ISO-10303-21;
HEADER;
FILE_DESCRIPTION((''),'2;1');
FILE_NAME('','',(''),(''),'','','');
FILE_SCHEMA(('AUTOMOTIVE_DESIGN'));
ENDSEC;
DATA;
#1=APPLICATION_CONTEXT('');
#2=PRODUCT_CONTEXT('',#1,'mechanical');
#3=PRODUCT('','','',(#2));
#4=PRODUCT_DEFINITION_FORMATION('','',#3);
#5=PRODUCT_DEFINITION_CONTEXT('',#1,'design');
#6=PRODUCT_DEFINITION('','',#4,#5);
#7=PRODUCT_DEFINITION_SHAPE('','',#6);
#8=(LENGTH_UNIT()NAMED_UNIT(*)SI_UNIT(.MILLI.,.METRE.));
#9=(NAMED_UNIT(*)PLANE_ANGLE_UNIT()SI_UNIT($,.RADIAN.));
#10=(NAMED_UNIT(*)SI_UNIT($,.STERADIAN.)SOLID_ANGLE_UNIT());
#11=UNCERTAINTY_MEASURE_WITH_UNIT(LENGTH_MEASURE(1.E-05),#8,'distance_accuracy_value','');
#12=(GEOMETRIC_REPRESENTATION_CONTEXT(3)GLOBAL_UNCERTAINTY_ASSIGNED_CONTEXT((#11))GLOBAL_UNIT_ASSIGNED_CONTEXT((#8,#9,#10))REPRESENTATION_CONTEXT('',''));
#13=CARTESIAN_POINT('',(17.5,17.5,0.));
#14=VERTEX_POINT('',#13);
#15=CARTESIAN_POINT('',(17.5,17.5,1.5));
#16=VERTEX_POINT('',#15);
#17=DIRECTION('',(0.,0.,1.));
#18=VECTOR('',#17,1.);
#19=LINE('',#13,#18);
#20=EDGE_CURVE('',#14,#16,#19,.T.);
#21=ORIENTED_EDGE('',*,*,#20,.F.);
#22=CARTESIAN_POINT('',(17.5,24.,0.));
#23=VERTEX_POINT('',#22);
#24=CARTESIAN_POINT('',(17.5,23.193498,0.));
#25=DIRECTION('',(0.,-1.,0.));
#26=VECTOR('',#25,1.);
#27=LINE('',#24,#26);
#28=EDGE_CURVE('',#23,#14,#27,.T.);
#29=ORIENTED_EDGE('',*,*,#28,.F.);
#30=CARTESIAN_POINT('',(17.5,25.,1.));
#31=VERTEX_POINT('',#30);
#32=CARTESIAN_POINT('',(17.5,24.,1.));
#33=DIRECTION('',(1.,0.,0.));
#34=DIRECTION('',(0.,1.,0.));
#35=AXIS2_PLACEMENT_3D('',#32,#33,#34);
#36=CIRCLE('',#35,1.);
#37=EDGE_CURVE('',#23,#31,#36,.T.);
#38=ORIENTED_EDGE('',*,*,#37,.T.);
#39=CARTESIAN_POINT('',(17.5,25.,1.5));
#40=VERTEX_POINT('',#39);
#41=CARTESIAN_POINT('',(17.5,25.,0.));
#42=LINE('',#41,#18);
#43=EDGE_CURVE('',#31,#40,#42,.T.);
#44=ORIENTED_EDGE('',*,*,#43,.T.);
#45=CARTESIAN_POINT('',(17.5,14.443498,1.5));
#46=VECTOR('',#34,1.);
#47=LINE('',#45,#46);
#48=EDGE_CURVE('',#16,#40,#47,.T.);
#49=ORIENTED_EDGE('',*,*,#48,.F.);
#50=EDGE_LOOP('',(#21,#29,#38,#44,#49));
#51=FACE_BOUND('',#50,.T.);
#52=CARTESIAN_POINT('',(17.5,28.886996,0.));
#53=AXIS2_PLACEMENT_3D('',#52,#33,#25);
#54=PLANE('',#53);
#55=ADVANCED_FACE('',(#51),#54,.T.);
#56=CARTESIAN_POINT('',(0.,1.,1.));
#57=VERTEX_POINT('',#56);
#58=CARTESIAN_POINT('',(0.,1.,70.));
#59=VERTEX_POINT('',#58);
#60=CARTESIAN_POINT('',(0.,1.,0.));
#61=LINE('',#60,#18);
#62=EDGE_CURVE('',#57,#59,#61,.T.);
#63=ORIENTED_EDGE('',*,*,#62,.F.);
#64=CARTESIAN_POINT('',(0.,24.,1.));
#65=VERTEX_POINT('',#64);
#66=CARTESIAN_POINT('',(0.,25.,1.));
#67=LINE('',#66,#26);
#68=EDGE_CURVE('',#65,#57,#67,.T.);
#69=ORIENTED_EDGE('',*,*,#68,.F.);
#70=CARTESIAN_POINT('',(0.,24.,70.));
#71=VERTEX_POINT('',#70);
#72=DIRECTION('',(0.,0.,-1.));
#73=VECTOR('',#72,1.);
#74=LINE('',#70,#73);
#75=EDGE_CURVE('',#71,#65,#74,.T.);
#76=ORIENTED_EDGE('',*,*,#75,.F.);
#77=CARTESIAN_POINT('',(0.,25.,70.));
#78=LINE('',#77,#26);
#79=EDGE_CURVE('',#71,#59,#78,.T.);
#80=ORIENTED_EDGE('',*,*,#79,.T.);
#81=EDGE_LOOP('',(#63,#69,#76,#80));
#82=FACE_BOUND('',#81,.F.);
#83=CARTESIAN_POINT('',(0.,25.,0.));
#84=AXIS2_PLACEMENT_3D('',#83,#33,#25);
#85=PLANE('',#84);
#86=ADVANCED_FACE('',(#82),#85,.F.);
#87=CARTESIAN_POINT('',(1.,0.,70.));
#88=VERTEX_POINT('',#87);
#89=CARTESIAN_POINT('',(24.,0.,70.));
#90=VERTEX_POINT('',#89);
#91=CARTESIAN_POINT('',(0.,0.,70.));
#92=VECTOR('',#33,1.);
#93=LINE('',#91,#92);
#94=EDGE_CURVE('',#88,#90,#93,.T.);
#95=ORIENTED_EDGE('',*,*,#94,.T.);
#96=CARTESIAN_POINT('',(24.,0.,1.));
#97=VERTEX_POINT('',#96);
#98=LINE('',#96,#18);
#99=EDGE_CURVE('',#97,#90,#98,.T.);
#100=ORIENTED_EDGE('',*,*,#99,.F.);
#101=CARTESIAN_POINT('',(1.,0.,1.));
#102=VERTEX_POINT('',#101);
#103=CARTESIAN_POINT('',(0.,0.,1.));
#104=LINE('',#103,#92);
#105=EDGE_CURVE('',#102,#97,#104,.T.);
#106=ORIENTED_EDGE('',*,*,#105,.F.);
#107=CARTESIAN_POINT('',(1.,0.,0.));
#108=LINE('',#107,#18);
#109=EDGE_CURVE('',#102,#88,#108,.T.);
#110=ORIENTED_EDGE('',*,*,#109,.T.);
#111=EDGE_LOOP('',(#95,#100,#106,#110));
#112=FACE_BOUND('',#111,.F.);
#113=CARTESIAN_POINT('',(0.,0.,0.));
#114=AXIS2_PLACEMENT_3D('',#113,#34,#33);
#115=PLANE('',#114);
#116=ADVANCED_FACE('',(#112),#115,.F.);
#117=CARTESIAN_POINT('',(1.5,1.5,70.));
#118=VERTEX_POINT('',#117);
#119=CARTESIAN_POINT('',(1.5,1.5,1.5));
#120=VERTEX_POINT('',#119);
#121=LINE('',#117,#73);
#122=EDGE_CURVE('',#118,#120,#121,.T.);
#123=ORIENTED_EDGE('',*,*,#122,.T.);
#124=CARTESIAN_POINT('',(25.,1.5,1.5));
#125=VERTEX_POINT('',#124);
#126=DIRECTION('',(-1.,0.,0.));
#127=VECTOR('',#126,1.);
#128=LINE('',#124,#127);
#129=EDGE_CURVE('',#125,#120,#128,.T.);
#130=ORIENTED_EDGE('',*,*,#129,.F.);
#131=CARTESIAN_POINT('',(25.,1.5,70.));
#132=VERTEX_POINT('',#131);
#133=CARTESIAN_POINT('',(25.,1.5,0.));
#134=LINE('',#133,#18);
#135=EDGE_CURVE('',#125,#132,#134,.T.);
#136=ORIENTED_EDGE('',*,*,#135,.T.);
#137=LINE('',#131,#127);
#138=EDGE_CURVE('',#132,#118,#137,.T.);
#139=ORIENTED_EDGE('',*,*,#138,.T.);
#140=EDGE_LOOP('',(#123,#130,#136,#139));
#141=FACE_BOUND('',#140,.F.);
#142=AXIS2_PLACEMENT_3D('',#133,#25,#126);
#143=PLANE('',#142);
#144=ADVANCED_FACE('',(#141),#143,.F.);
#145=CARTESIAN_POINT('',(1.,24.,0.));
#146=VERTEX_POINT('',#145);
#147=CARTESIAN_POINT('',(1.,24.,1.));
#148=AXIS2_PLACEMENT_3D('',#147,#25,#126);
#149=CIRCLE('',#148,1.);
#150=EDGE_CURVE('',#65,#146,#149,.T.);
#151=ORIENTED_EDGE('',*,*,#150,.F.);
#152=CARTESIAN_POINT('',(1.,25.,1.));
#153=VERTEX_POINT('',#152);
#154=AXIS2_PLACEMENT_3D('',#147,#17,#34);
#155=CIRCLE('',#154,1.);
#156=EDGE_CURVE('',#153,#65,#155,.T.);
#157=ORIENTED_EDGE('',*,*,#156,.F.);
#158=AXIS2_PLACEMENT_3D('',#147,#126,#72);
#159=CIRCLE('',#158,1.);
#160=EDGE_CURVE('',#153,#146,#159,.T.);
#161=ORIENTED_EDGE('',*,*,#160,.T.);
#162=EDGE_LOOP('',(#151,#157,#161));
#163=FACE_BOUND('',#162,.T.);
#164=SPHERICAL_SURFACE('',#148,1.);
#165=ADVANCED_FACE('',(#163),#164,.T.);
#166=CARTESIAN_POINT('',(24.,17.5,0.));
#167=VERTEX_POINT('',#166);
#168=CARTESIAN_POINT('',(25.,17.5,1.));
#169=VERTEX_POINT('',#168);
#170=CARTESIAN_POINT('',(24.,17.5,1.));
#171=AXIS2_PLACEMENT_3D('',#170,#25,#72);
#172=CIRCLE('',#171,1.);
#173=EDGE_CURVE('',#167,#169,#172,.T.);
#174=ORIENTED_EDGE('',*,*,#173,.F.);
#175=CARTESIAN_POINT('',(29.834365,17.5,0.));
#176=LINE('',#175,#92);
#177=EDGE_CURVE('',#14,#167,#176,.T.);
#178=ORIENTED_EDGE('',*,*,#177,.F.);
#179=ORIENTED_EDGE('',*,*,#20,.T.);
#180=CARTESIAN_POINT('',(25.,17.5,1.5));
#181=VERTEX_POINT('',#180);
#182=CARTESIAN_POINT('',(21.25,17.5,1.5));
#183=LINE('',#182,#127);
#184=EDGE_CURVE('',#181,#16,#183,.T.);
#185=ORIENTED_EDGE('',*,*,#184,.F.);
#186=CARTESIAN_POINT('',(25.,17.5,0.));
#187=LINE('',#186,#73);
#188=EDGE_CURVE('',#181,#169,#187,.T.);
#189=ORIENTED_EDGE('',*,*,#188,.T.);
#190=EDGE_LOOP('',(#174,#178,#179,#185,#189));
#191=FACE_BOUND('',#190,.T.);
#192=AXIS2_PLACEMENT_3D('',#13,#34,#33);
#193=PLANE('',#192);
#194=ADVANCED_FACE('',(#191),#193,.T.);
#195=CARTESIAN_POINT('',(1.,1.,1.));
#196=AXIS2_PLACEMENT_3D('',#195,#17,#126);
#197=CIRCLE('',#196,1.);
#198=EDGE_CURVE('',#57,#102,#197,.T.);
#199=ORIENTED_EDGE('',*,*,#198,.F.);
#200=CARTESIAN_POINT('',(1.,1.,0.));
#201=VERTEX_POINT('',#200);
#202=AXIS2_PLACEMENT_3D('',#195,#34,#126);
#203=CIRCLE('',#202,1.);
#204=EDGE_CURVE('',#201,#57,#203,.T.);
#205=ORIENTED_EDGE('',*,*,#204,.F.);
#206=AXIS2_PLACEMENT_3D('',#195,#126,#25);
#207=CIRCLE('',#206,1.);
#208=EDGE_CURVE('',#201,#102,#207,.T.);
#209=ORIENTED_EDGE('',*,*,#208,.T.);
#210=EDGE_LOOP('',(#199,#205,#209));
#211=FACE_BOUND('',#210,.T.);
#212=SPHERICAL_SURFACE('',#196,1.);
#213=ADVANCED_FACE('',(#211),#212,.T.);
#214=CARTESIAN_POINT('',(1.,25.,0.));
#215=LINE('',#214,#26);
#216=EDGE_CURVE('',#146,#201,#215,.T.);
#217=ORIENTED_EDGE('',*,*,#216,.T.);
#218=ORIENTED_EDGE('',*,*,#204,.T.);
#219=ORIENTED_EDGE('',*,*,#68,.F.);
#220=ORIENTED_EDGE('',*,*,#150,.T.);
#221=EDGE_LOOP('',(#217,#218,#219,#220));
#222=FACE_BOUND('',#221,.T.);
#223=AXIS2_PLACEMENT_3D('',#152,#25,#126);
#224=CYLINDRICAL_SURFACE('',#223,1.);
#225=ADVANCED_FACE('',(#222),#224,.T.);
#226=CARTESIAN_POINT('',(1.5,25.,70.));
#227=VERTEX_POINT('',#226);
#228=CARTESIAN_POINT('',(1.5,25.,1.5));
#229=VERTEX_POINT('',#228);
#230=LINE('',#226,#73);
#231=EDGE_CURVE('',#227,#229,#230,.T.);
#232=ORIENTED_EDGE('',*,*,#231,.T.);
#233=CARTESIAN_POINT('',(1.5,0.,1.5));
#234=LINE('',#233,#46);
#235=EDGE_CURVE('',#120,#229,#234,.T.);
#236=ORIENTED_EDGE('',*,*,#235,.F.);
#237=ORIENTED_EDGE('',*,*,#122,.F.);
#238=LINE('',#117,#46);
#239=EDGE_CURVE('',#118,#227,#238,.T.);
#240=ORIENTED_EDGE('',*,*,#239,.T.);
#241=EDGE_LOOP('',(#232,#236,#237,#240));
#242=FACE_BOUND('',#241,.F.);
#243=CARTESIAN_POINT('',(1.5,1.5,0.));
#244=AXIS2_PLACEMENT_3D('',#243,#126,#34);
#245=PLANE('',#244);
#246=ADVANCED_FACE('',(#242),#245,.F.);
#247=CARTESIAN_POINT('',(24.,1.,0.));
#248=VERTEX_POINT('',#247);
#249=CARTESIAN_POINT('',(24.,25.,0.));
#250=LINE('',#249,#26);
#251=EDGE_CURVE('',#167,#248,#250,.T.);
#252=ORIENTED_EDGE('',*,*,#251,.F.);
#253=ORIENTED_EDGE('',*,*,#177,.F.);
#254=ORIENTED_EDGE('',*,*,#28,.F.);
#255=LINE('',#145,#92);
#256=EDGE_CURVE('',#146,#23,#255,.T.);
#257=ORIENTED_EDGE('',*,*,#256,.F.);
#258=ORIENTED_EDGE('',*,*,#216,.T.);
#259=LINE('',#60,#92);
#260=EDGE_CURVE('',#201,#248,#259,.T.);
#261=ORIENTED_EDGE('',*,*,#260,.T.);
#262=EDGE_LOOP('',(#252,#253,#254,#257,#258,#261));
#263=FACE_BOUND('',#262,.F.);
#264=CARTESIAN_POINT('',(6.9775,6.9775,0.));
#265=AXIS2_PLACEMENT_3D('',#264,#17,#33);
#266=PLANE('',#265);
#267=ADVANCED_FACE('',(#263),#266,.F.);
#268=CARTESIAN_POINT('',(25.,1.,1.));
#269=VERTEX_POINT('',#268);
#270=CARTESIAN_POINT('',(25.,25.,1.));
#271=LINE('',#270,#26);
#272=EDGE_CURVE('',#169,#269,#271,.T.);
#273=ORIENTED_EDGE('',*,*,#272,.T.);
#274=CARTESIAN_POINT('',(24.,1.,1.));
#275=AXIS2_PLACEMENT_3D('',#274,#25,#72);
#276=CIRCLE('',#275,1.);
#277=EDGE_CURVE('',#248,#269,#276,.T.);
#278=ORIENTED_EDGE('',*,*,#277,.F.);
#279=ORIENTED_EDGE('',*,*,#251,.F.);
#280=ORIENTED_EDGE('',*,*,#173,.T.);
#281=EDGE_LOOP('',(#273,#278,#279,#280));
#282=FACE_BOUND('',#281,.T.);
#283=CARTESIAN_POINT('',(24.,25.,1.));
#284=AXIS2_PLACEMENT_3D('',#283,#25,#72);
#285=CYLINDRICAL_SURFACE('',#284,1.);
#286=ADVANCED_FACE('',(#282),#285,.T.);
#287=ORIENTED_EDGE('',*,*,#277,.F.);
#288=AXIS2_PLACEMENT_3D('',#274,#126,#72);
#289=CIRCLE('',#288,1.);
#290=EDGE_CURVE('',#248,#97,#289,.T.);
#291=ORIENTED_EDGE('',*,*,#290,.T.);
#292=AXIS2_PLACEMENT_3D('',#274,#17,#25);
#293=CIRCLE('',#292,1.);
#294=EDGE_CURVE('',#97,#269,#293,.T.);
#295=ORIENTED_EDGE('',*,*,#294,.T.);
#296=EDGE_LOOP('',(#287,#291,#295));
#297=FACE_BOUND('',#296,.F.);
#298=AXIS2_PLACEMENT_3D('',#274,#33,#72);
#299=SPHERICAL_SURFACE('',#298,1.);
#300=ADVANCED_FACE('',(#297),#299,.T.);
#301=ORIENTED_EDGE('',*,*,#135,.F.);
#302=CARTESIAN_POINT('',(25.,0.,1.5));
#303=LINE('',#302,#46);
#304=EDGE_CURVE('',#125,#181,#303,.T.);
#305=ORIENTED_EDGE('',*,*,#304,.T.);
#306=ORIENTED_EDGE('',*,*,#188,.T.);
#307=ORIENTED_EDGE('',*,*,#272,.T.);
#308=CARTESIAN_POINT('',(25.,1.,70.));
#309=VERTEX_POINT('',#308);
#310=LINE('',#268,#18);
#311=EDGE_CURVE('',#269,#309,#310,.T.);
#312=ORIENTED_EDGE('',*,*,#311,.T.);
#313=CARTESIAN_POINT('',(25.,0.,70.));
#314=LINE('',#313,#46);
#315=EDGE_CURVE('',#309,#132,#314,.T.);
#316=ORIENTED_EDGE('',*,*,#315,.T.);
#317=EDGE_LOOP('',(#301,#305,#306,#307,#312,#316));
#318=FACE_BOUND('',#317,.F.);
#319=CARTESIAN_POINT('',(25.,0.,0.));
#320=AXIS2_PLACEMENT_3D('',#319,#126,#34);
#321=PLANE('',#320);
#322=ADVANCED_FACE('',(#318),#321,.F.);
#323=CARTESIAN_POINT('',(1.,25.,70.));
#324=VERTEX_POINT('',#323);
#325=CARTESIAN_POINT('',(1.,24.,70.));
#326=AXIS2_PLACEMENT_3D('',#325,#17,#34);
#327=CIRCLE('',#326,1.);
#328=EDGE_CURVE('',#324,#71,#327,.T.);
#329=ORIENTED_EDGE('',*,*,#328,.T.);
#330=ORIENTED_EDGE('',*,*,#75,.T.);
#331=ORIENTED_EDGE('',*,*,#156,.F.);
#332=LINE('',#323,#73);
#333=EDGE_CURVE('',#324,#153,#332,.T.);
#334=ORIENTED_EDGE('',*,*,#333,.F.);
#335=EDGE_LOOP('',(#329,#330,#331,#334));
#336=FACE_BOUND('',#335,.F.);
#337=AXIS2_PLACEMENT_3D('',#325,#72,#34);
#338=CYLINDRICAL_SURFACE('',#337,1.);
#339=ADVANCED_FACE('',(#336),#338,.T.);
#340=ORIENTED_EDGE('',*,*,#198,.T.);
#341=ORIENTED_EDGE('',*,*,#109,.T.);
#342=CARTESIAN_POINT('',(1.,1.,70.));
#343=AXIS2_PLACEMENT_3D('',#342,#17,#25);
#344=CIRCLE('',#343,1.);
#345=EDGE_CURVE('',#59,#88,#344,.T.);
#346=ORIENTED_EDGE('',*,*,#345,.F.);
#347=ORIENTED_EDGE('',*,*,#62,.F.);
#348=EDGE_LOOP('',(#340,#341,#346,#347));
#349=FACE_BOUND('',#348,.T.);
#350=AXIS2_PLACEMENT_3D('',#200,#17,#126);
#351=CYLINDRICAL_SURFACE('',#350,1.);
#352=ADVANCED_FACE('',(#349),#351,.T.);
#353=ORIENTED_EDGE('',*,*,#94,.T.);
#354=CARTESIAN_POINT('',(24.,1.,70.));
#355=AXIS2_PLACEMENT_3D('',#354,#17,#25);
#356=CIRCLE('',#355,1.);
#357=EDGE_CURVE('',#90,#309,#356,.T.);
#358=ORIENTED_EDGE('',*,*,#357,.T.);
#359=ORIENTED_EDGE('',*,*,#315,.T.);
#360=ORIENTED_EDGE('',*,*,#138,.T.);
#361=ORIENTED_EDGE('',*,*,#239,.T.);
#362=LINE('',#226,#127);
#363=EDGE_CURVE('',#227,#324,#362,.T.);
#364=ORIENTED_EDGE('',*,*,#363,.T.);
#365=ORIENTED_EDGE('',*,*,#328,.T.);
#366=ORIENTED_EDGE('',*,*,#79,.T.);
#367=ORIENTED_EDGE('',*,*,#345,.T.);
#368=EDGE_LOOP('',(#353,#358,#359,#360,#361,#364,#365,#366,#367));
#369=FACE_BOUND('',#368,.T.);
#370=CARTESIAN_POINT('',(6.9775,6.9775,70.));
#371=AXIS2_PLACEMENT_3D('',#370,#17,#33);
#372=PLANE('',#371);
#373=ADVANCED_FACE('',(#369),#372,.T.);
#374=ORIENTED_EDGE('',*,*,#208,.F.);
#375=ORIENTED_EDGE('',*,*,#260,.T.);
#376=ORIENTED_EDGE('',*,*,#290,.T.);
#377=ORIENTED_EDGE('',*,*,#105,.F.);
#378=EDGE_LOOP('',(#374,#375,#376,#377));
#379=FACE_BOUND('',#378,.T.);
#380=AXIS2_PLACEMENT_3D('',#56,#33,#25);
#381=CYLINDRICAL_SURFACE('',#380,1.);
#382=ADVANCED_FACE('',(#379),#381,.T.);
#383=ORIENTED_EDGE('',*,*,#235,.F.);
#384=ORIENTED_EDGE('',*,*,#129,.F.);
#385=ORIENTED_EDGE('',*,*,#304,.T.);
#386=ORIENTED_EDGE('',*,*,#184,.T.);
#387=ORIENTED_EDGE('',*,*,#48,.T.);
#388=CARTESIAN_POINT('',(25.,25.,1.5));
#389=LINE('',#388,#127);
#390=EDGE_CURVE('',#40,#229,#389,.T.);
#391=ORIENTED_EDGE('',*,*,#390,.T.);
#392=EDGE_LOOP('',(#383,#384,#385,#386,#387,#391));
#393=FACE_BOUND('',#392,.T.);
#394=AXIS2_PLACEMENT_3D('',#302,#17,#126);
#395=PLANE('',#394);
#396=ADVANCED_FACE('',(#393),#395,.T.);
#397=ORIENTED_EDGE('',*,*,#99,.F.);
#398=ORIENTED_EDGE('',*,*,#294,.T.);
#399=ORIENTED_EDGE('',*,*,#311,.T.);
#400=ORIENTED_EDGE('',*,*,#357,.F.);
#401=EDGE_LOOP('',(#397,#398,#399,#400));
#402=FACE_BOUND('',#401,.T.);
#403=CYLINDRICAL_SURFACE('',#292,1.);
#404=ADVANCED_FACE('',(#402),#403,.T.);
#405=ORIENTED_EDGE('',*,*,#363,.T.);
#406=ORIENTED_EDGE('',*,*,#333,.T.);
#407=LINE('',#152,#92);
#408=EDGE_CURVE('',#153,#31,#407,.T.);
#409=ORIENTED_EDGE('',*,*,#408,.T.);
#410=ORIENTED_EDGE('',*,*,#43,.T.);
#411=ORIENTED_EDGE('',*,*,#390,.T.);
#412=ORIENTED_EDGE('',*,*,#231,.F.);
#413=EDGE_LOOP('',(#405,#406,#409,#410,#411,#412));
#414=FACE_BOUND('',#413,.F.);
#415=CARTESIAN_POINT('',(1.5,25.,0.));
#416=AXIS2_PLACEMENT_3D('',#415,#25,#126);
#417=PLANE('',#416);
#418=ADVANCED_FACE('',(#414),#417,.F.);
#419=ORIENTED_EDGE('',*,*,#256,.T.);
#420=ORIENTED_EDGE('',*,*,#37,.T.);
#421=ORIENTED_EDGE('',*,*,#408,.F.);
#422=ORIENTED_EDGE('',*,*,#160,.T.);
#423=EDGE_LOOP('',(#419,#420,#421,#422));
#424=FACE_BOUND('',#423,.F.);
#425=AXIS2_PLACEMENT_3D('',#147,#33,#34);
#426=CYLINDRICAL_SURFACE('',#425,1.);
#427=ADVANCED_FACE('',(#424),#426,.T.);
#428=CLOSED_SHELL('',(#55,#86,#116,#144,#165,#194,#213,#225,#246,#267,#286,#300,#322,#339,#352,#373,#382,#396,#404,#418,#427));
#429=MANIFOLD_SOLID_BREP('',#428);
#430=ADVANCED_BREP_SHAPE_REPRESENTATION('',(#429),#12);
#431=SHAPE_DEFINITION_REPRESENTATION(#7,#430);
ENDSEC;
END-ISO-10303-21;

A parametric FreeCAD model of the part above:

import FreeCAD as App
import Part
import Sketcher
Q = App.Units.Quantity


def edges_at(feature, points):
    """Names of the edges that pass closest to the given points."""
    edges = feature.Shape.Edges
    near = lambda p: min(range(len(edges)), key=lambda i: edges[i].distToShape(Part.Vertex(*p))[0])
    return sorted({f"Edge{near(p) + 1}" for p in points})


def add_polygon(sketch, points):
    """Adds a closed chain of lines whose ends are joined by coincident constraints."""
    first, n = sketch.GeometryCount, len(points)
    for a, b in zip(points, points[1:] + points[:1]):
        sketch.addGeometry(Part.LineSegment(App.Vector(*a, 0), App.Vector(*b, 0)), False)
    for i in range(n):
        sketch.addConstraint(Sketcher.Constraint("Coincident", first + i, 2, first + (i + 1) % n, 1))

doc = App.newDocument("Part")
params = doc.addObject("Spreadsheet::Sheet", "Params")
for row, (alias, value) in enumerate([
    ("sketch1_width", "25 mm"),
    ("sketch1_width2", "23.5 mm"),
    ("pad1_length", "70 mm"),
    ("sketch2_width", "25 mm"),
    ("sketch2_width2", "23.5 mm"),
    ("pad2_length", "25 mm"),
    ("fillet_radius", "1 mm"),
    ("fillet2_radius", "1 mm"),
    ("pocket1_length", "5 mm"),
], start=1):
    params.set(f"A{row}", alias)
    params.set(f"B{row}", "=" + value)
    params.setAlias(f"B{row}", alias)

body = doc.addObject("PartDesign::Body", "Body")

sketch1 = body.newObject("Sketcher::SketchObject", "Sketch")
sketch1.AttachmentSupport = (doc.getObject("XY_Plane"), [""])
sketch1.MapMode = "FlatFace"
add_polygon(sketch1, [(0, 25), (0, 0), (25, 0), (25, 1.5), (1.5, 1.5), (1.5, 25)])
sketch1.addConstraint(Sketcher.Constraint("Vertical", 0))
sketch1.addConstraint(Sketcher.Constraint("Horizontal", 1))
sketch1.addConstraint(Sketcher.Constraint("Vertical", 2))
sketch1.addConstraint(Sketcher.Constraint("Horizontal", 3))
sketch1.addConstraint(Sketcher.Constraint("Vertical", 4))
sketch1.addConstraint(Sketcher.Constraint("Horizontal", 5))
sketch1.addConstraint(Sketcher.Constraint("Coincident", 0, 2, -1, 1))
sketch1.addConstraint(Sketcher.Constraint("Equal", 1, 0))
sketch1.addConstraint(Sketcher.Constraint("Equal", 5, 2))
sketch1.addConstraint(Sketcher.Constraint("DistanceX", 1, 1, 1, 2, Q("25 mm")))
sketch1.addConstraint(Sketcher.Constraint("DistanceX", 3, 2, 3, 1, Q("23.5 mm")))
sketch1.setExpression("Constraints[15]", "Params.sketch1_width")
sketch1.setExpression("Constraints[16]", "Params.sketch1_width2")
pad1 = body.newObject("PartDesign::Pad", "Pad")
pad1.Profile = sketch1
pad1.setExpression("Length", "Params.pad1_length")

sketch2 = body.newObject("Sketcher::SketchObject", "Sketch001")
sketch2.AttachmentSupport = (doc.getObject("XZ_Plane"), [""])
sketch2.MapMode = "FlatFace"
add_polygon(sketch2, [(0, 25), (0, 0), (25, 0), (25, 1.5), (1.5, 1.5), (1.5, 25)])
sketch2.addConstraint(Sketcher.Constraint("Vertical", 0))
sketch2.addConstraint(Sketcher.Constraint("Horizontal", 1))
sketch2.addConstraint(Sketcher.Constraint("Vertical", 2))
sketch2.addConstraint(Sketcher.Constraint("Horizontal", 3))
sketch2.addConstraint(Sketcher.Constraint("Vertical", 4))
sketch2.addConstraint(Sketcher.Constraint("Horizontal", 5))
sketch2.addConstraint(Sketcher.Constraint("Coincident", 0, 2, -1, 1))
sketch2.addConstraint(Sketcher.Constraint("Equal", 1, 0))
sketch2.addConstraint(Sketcher.Constraint("Equal", 5, 2))
sketch2.addConstraint(Sketcher.Constraint("DistanceX", 1, 1, 1, 2, Q("25 mm")))
sketch2.addConstraint(Sketcher.Constraint("DistanceX", 3, 2, 3, 1, Q("23.5 mm")))
sketch2.setExpression("Constraints[15]", "Params.sketch2_width")
sketch2.setExpression("Constraints[16]", "Params.sketch2_width2")
pad2 = body.newObject("PartDesign::Pad", "Pad001")
pad2.Profile = sketch2
pad2.setExpression("Length", "Params.pad2_length")
pad2.Reversed = True
doc.recompute()

fillet = body.newObject("PartDesign::Fillet", "Fillet")
fillet.Base = (pad2, edges_at(pad2, [(0, 0, 35), (0, 12.5, 0), (12.5, 0, 0)]))
fillet.setExpression("Radius", "Params.fillet_radius")
doc.recompute()

fillet2 = body.newObject("PartDesign::Fillet", "Fillet001")
fillet2.Base = (fillet, edges_at(fillet, [(25, 13, 0), (13, 25, 0), (25, 25, 0.75)]))
fillet2.setExpression("Radius", "Params.fillet2_radius")

sketch3 = body.newObject("Sketcher::SketchObject", "Sketch002")
sketch3.AttachmentSupport = (doc.getObject("XY_Plane"), [""])
sketch3.MapMode = "FlatFace"
add_polygon(sketch3, [(17.5, 17.5), (17.5, 28.886996), (42.16873, 28.886996), (42.16873, 17.5)])
sketch3.addConstraint(Sketcher.Constraint("Vertical", 0))
sketch3.addConstraint(Sketcher.Constraint("Horizontal", 1))
sketch3.addConstraint(Sketcher.Constraint("Vertical", 2))
sketch3.addConstraint(Sketcher.Constraint("Horizontal", 3))
sketch3.addConstraint(Sketcher.Constraint("DistanceX", -1, 1, 0, 2, Q("17.5 mm")))
sketch3.addConstraint(Sketcher.Constraint("DistanceY", -1, 1, 2, 2, Q("17.5 mm")))
sketch3.addConstraint(Sketcher.Constraint("DistanceX", 1, 1, 1, 2, Q("24.66873 mm")))
sketch3.addConstraint(Sketcher.Constraint("DistanceY", 0, 1, 0, 2, Q("11.386996 mm")))
pocket1 = body.newObject("PartDesign::Pocket", "Pocket")
pocket1.Profile = sketch3
pocket1.setExpression("Length", "Params.pocket1_length")
pocket1.Reversed = True

doc.recompute()
